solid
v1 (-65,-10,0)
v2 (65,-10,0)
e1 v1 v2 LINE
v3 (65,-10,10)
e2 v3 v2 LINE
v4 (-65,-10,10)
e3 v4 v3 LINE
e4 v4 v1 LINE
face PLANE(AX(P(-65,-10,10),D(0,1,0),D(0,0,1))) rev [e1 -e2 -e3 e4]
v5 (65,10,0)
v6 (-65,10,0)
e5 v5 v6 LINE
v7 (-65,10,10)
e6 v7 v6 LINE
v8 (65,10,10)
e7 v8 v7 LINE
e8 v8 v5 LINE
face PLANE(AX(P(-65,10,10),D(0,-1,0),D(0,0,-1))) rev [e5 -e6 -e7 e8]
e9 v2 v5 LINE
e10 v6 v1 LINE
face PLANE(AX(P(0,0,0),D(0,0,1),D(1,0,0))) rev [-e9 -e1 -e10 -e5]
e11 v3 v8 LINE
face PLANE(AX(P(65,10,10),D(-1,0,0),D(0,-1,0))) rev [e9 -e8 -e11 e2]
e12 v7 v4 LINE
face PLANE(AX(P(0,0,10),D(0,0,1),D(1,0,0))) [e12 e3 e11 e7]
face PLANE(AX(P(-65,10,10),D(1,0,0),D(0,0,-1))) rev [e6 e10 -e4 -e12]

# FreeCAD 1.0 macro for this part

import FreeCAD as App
import Part
import Sketcher
Q = App.Units.Quantity


def add_polygon(sketch, points):
    """Adds a closed chain of lines whose ends are joined by coincident constraints."""
    first, n = sketch.GeometryCount, len(points)
    for a, b in zip(points, points[1:] + points[:1]):
        sketch.addGeometry(Part.LineSegment(App.Vector(*a, 0), App.Vector(*b, 0)), False)
    for i in range(n):
        sketch.addConstraint(Sketcher.Constraint("Coincident", first + i, 2, first + (i + 1) % n, 1))

doc = App.newDocument("Part")
body = doc.addObject("PartDesign::Body", "Body")

sketch1 = body.newObject("Sketcher::SketchObject", "Sketch")
sketch1.AttachmentSupport = (doc.getObject("XY_Plane"), [""])
sketch1.MapMode = "FlatFace"
add_polygon(sketch1, [(-65, 10), (-65, -10), (65, -10), (65, 10)])
sketch1.addConstraint([
    Sketcher.Constraint("Vertical", 0),
    Sketcher.Constraint("Horizontal", 1),
    Sketcher.Constraint("Vertical", 2),
    Sketcher.Constraint("Horizontal", 3),
    Sketcher.Constraint("Symmetric", 0, 2, 2, 2, -1, 1),
    Sketcher.Constraint("DistanceX", 1, 1, 1, 2, Q("130 mm")),
    Sketcher.Constraint("DistanceY", 0, 2, 0, 1, Q("20 mm")),
])
pad1 = body.newObject("PartDesign::Pad", "Pad")
pad1.Profile = sketch1
pad1.Length = 10

doc.recompute()
